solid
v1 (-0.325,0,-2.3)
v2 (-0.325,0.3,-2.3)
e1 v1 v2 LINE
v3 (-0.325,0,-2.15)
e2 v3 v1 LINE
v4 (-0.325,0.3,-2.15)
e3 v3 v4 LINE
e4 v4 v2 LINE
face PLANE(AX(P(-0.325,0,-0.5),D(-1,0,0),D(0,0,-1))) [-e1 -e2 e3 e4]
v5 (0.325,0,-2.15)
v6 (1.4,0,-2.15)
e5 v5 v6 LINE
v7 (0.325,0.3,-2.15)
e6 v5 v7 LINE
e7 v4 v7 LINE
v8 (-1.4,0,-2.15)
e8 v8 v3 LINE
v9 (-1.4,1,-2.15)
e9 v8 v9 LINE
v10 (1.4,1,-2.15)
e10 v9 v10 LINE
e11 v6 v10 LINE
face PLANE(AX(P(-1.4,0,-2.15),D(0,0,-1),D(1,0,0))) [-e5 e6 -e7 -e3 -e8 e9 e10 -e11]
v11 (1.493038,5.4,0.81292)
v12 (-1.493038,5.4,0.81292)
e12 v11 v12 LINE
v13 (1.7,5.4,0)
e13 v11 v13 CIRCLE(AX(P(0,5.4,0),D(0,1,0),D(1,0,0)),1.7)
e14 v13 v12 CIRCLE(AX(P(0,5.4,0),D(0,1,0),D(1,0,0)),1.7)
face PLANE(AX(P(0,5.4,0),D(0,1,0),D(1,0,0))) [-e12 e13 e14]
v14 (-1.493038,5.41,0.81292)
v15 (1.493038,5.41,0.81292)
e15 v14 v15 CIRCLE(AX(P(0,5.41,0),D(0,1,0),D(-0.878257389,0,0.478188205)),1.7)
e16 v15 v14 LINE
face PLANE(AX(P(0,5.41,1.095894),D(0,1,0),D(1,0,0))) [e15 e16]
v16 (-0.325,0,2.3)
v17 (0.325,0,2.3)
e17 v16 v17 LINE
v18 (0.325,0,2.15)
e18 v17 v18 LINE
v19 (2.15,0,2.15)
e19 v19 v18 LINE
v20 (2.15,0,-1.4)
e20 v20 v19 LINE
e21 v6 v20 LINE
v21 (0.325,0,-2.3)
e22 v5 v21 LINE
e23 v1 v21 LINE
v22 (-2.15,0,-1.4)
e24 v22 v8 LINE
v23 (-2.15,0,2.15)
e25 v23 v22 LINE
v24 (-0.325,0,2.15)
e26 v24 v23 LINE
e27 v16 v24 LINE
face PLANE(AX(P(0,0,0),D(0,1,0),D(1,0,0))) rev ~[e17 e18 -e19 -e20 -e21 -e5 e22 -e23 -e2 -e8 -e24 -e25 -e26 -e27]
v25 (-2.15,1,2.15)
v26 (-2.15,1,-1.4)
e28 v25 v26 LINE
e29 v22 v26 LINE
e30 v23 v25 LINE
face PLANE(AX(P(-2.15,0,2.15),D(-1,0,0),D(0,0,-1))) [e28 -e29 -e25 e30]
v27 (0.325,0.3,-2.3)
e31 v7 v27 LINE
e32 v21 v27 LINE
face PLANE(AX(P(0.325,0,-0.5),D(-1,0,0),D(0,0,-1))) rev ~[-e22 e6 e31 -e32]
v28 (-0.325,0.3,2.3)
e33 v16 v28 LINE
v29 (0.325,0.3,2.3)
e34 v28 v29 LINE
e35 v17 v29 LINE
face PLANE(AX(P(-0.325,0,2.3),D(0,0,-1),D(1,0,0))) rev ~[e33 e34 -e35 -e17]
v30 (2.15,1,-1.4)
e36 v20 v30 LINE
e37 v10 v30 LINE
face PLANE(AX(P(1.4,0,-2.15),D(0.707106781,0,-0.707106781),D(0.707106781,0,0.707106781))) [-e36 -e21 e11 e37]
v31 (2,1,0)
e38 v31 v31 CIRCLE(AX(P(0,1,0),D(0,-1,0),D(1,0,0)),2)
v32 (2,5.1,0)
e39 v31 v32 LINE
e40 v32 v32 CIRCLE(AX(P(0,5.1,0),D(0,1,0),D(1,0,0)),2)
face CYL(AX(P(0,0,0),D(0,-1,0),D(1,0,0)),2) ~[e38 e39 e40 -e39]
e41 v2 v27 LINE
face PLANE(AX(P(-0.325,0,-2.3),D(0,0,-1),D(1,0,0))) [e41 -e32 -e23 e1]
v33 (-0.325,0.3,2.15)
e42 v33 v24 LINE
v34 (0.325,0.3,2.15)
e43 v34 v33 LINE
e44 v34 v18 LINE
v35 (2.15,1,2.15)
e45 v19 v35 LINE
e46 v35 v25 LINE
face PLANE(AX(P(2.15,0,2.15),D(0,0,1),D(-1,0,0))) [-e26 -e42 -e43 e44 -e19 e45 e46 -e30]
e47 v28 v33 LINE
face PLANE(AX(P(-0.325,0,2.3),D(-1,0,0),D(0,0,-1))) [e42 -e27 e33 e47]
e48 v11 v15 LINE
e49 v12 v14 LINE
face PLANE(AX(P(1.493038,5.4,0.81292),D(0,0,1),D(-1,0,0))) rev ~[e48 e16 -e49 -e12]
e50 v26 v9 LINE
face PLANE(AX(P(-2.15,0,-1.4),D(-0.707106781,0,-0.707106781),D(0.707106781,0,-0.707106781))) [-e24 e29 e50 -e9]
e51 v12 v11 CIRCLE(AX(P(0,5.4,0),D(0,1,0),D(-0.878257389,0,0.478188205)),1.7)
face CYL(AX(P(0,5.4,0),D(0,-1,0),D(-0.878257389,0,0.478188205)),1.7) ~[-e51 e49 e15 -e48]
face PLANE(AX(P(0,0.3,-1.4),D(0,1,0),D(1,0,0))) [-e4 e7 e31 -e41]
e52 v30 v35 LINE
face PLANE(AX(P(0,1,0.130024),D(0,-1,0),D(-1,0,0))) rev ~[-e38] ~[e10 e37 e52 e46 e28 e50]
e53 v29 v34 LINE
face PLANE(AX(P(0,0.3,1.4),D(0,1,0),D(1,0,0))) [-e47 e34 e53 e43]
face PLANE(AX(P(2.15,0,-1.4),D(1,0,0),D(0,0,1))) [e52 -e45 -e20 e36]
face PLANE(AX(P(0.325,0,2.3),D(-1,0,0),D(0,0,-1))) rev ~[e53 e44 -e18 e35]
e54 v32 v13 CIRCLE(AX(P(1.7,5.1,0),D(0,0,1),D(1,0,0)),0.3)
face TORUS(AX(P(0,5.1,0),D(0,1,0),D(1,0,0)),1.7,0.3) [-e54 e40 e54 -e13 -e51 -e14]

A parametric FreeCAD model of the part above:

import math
import FreeCAD as App
import Part
import Sketcher
Q = App.Units.Quantity


def edges_at(feature, points):
    """Names of the edges that pass closest to the given points."""
    edges = feature.Shape.Edges
    near = lambda p: min(range(len(edges)), key=lambda i: edges[i].distToShape(Part.Vertex(*p))[0])
    return sorted({f"Edge{near(p) + 1}" for p in points})

doc = App.newDocument("Part")
body = doc.addObject("PartDesign::Body", "Body")

sketch1 = doc.addObject("Sketcher::SketchObject", "Sketch")
body.addObject(sketch1)
sketch1.AttachmentSupport = (doc.XZ_Plane, [""])
sketch1.MapMode = "FlatFace"
sketch1.addGeometry([
    Part.LineSegment(App.Vector(-2.1, 2.1, 0), App.Vector(2.1, 2.1, 0)),
    Part.LineSegment(App.Vector(2.1, 2.1, 0), App.Vector(2.1, -1.4, 0)),
    Part.LineSegment(App.Vector(2.1, -1.4, 0), App.Vector(1.4, -2.1, 0)),
    Part.LineSegment(App.Vector(1.4, -2.1, 0), App.Vector(-1.4, -2.1, 0)),
    Part.LineSegment(App.Vector(-1.4, -2.1, 0), App.Vector(-2.1, -1.4, 0)),
    Part.LineSegment(App.Vector(-2.1, -1.4, 0), App.Vector(-2.1, 2.1, 0)),
], False)
sketch1.addConstraint([
    Sketcher.Constraint("Coincident", 0, 2, 1, 1),
    Sketcher.Constraint("Coincident", 1, 2, 2, 1),
    Sketcher.Constraint("Coincident", 2, 2, 3, 1),
    Sketcher.Constraint("Coincident", 3, 2, 4, 1),
    Sketcher.Constraint("Coincident", 4, 2, 5, 1),
    Sketcher.Constraint("Coincident", 5, 2, 0, 1),
    Sketcher.Constraint("Horizontal", 0),
    Sketcher.Constraint("Vertical", 1),
    Sketcher.Constraint("Horizontal", 3),
    Sketcher.Constraint("Vertical", 5),
    Sketcher.Constraint("Symmetric", 1, 2, 4, 2, -2),
    Sketcher.Constraint("Perpendicular", 2, 4),
    Sketcher.Constraint("Equal", 2, 4),
    Sketcher.Constraint("DistanceX", 0, 1, 0, 2, Q("4.3 mm")),
    Sketcher.Constraint("DistanceX", 3, 2, 3, 1, Q("2.8 mm")),
    Sketcher.Constraint("DistanceY", 1, 2, 1, 1, Q("3.55 mm")),
    Sketcher.Constraint("DistanceY", 1, 2, -1, 1, Q("1.4 mm")),
])
pad1 = doc.addObject("PartDesign::Pad", "Pad")
body.addObject(pad1)
pad1.Profile = sketch1
pad1.Length = 1
pad1.Reversed = True

sketch2 = doc.addObject("Sketcher::SketchObject", "Sketch001")
body.addObject(sketch2)
sketch2.AttachmentSupport = (doc.XZ_Plane, [""])
sketch2.MapMode = "FlatFace"
sketch2.addGeometry(Part.Circle(App.Vector(0, 0, 0), App.Vector(0, 0, 1), 2), False)
sketch2.addConstraint([
    Sketcher.Constraint("Coincident", 0, 3, -1, 1),
    Sketcher.Constraint("Diameter", 0, Q("4 mm")),
])
pad2 = doc.addObject("PartDesign::Pad", "Pad001")
body.addObject(pad2)
pad2.Profile = sketch2
pad2.Length = 5.4
pad2.Reversed = True
doc.recompute()

fillet = doc.addObject("PartDesign::Fillet", "Fillet")
body.addObject(fillet)
fillet.Base = (pad2, edges_at(pad2, [(-2, 5.4, 0)]))
fillet.Radius = 0.3

sketch3 = doc.addObject("Sketcher::SketchObject", "Sketch002")
body.addObject(sketch3)
sketch3.AttachmentSupport = (doc.XZ_Plane, [""])
sketch3.MapMode = "FlatFace"
sketch3.addGeometry([
    Part.LineSegment(App.Vector(-0.3, -2.3, 0), App.Vector(-0.3, -0.5, 0)),
    Part.LineSegment(App.Vector(-0.3, -0.5, 0), App.Vector(0.3, -0.5, 0)),
    Part.LineSegment(App.Vector(0.3, -0.5, 0), App.Vector(0.3, -2.3, 0)),
    Part.LineSegment(App.Vector(0.3, -2.3, 0), App.Vector(-0.3, -2.3, 0)),
    Part.LineSegment(App.Vector(-0.3, 0.5, 0), App.Vector(-0.3, 2.3, 0)),
    Part.LineSegment(App.Vector(-0.3, 2.3, 0), App.Vector(0.3, 2.3, 0)),
    Part.LineSegment(App.Vector(0.3, 2.3, 0), App.Vector(0.3, 0.5, 0)),
    Part.LineSegment(App.Vector(0.3, 0.5, 0), App.Vector(-0.3, 0.5, 0)),
], False)
sketch3.addConstraint([
    Sketcher.Constraint("Coincident", 0, 2, 1, 1),
    Sketcher.Constraint("Coincident", 1, 2, 2, 1),
    Sketcher.Constraint("Coincident", 2, 2, 3, 1),
    Sketcher.Constraint("Coincident", 3, 2, 0, 1),
    Sketcher.Constraint("Coincident", 4, 2, 5, 1),
    Sketcher.Constraint("Coincident", 5, 2, 6, 1),
    Sketcher.Constraint("Coincident", 6, 2, 7, 1),
    Sketcher.Constraint("Coincident", 7, 2, 4, 1),
    Sketcher.Constraint("Vertical", 0),
    Sketcher.Constraint("Horizontal", 1),
    Sketcher.Constraint("Vertical", 2),
    Sketcher.Constraint("Horizontal", 3),
    Sketcher.Constraint("Vertical", 4),
    Sketcher.Constraint("Horizontal", 5),
    Sketcher.Constraint("Vertical", 6),
    Sketcher.Constraint("Horizontal", 7),
    Sketcher.Constraint("Symmetric", 2, 2, 4, 2, -1, 1),
    Sketcher.Constraint("Symmetric", 0, 2, 6, 2, -1, 1),
    Sketcher.Constraint("Vertical", 3, 2, 4, 2),
    Sketcher.Constraint("DistanceY", 0, 1, 0, 2, Q("1.8 mm")),
    Sketcher.Constraint("DistanceY", 1, 2, 6, 2, Q("1 mm")),
    Sketcher.Constraint("DistanceX", 1, 1, 1, 2, Q("0.65 mm")),
])
pad3 = doc.addObject("PartDesign::Pad", "Pad002")
body.addObject(pad3)
pad3.Profile = sketch3
pad3.Length = 0.3
pad3.Reversed = True

sketch4 = doc.addObject("Sketcher::SketchObject", "Sketch003")
body.addObject(sketch4)
sketch4.AttachmentSupport = (doc.XZ_Plane, [""])
sketch4.MapMode = "FlatFace"
sketch4.AttachmentOffset = App.Placement(App.Vector(0, 0, -5.4), App.Rotation())
sketch4.addGeometry([
    Part.LineSegment(App.Vector(1.5, 0.8, 0), App.Vector(-1.5, 0.8, 0)),
    Part.ArcOfCircle(Part.Circle(App.Vector(0, 0, 0), App.Vector(0, 0, 1), 1.7), math.radians(29), math.radians(151)),
], False)
sketch4.addConstraint([
    Sketcher.Constraint("Coincident", 0, 1, 1, 1),
    Sketcher.Constraint("Coincident", 1, 2, 0, 2),
    Sketcher.Constraint("Horizontal", 0),
    Sketcher.Constraint("Coincident", 1, 3, -1, 1),
    Sketcher.Constraint("Radius", 1, Q("1.7 mm")),
    Sketcher.Constraint("DistanceX", 0, 2, 0, 1, Q("2.986075 mm")),
])
pad4 = doc.addObject("PartDesign::Pad", "Pad003")
body.addObject(pad4)
pad4.Profile = sketch4
pad4.Length = 0.01
pad4.Reversed = True

doc.recompute()
